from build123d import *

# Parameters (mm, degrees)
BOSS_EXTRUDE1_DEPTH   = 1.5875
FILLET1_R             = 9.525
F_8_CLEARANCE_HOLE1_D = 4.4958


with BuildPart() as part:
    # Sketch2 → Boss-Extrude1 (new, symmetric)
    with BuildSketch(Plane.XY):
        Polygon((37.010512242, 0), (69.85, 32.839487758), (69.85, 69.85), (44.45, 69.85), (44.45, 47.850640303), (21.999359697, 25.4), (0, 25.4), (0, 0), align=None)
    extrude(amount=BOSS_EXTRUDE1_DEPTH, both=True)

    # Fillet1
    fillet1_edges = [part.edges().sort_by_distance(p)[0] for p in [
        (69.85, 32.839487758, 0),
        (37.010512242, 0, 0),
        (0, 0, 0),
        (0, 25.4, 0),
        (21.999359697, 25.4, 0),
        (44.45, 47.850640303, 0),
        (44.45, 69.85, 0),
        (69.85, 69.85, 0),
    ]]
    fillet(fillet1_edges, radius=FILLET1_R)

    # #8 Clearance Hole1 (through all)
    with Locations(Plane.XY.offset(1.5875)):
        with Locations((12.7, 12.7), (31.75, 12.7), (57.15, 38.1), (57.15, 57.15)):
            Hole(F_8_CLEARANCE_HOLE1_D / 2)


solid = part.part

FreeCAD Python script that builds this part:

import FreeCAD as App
import Part
import Sketcher
Q = App.Units.Quantity


def edges_at(feature, points):
    """Names of the edges that pass closest to the given points."""
    edges = feature.Shape.Edges
    near = lambda p: min(range(len(edges)), key=lambda i: edges[i].distToShape(Part.Vertex(*p))[0])
    return sorted({f"Edge{near(p) + 1}" for p in points})


def add_polygon(sketch, points):
    """Adds a closed chain of lines whose ends are joined by coincident constraints."""
    first, n = sketch.GeometryCount, len(points)
    for a, b in zip(points, points[1:] + points[:1]):
        sketch.addGeometry(Part.LineSegment(App.Vector(*a, 0), App.Vector(*b, 0)), False)
    for i in range(n):
        sketch.addConstraint(Sketcher.Constraint("Coincident", first + i, 2, first + (i + 1) % n, 1))

doc = App.newDocument("Part")
body = doc.addObject("PartDesign::Body", "Body")

# Sketch on XY plane
sketch1 = body.newObject("Sketcher::SketchObject", "Sketch")
sketch1.AttachmentSupport = (doc.getObject("XY_Plane"), [""])
sketch1.MapMode = "FlatFace"
add_polygon(sketch1, [(37, 0), (70, 33), (70, 70), (44, 70), (44, 48), (22, 25), (0, 25), (0, 0)])  # lines 0-7
sketch1.addConstraint([
    Sketcher.Constraint("Vertical", 1),
    Sketcher.Constraint("Horizontal", 2),
    Sketcher.Constraint("Vertical", 3),
    Sketcher.Constraint("Horizontal", 5),
    Sketcher.Constraint("Vertical", 6),
    Sketcher.Constraint("Horizontal", 7),
    Sketcher.Constraint("Coincident", 6, 2, -1, 1),
    Sketcher.Constraint("Parallel", 0, 4),
    Sketcher.Constraint("Equal", 7, 1),
    Sketcher.Constraint("Equal", 5, 3),
    Sketcher.Constraint("Equal", 2, 6),
    Sketcher.Constraint("DistanceX", 2, 2, 2, 1, Q("1 in")),
    Sketcher.Constraint("Distance", 4, Q("1.25 in")),
    Sketcher.Constraint("DistanceX", -1, 1, 0, 2, Q("2.75 in")),
    Sketcher.Constraint("Distance", 0, Q("46.442049 mm")),
])
pad1 = body.newObject("PartDesign::Pad", "Pad")
pad1.Profile = sketch1
pad1.Length = Q("0.125 in")
pad1.Midplane = True
doc.recompute()

fillet = body.newObject("PartDesign::Fillet", "Fillet")
fillet.Base = (pad1, edges_at(pad1, [
    (69.85, 32.839, 0),
    (37.011, 0, 0),
    (0, 0, 0),
    (0, 25.4, 0),
    (21.999, 25.4, 0),
    (44.45, 47.851, 0),
    (44.45, 69.85, 0),
    (69.85, 69.85, 0),
]))
fillet.Radius = Q("0.375 in")

# Sketch on XY plane
sketch2 = body.newObject("Sketcher::SketchObject", "Sketch001")
sketch2.AttachmentSupport = (doc.getObject("XY_Plane"), [""])
sketch2.MapMode = "FlatFace"
sketch2.AttachmentOffset = App.Placement(App.Vector(0, 0, 0.0625 * 25.4), App.Rotation())
sketch2.addGeometry([
    Part.Circle(App.Vector(12.7, 12.7, 0), App.Vector(0, 0, 1), 2.2),
    Part.Circle(App.Vector(31.8, 12.7, 0), App.Vector(0, 0, 1), 2.2),
    Part.Circle(App.Vector(57.1, 38.1, 0), App.Vector(0, 0, 1), 2.2),
    Part.Circle(App.Vector(57.1, 57.1, 0), App.Vector(0, 0, 1), 2.2),
], False)
sketch2.addConstraint([
    Sketcher.Constraint("Equal", 0, 1),
    Sketcher.Constraint("Equal", 1, 2),
    Sketcher.Constraint("Equal", 2, 3),
    Sketcher.Constraint("Horizontal", 0, 3, 1, 3),
    Sketcher.Constraint("Vertical", 2, 3, 3, 3),
    Sketcher.Constraint("Diameter", 0, Q("0.177 in")),
    Sketcher.Constraint("DistanceX", 1, 3, 2, 3, Q("1 in")),
    Sketcher.Constraint("DistanceY", 1, 3, 2, 3, Q("1 in")),
    Sketcher.Constraint("DistanceX", -1, 1, 0, 3, Q("0.5 in")),
    Sketcher.Constraint("DistanceY", -1, 1, 0, 3, Q("0.5 in")),
    Sketcher.Constraint("DistanceX", -1, 1, 1, 3, Q("1.25 in")),
    Sketcher.Constraint("DistanceY", -1, 1, 3, 3, Q("2.25 in")),
])
doc.recompute()
hole = body.newObject("PartDesign::Hole", "Hole")
hole.Profile = sketch2
hole.ThreadType = "None"
hole.Diameter = Q("0.177 in")
hole.DepthType = "ThroughAll"

doc.recompute()
